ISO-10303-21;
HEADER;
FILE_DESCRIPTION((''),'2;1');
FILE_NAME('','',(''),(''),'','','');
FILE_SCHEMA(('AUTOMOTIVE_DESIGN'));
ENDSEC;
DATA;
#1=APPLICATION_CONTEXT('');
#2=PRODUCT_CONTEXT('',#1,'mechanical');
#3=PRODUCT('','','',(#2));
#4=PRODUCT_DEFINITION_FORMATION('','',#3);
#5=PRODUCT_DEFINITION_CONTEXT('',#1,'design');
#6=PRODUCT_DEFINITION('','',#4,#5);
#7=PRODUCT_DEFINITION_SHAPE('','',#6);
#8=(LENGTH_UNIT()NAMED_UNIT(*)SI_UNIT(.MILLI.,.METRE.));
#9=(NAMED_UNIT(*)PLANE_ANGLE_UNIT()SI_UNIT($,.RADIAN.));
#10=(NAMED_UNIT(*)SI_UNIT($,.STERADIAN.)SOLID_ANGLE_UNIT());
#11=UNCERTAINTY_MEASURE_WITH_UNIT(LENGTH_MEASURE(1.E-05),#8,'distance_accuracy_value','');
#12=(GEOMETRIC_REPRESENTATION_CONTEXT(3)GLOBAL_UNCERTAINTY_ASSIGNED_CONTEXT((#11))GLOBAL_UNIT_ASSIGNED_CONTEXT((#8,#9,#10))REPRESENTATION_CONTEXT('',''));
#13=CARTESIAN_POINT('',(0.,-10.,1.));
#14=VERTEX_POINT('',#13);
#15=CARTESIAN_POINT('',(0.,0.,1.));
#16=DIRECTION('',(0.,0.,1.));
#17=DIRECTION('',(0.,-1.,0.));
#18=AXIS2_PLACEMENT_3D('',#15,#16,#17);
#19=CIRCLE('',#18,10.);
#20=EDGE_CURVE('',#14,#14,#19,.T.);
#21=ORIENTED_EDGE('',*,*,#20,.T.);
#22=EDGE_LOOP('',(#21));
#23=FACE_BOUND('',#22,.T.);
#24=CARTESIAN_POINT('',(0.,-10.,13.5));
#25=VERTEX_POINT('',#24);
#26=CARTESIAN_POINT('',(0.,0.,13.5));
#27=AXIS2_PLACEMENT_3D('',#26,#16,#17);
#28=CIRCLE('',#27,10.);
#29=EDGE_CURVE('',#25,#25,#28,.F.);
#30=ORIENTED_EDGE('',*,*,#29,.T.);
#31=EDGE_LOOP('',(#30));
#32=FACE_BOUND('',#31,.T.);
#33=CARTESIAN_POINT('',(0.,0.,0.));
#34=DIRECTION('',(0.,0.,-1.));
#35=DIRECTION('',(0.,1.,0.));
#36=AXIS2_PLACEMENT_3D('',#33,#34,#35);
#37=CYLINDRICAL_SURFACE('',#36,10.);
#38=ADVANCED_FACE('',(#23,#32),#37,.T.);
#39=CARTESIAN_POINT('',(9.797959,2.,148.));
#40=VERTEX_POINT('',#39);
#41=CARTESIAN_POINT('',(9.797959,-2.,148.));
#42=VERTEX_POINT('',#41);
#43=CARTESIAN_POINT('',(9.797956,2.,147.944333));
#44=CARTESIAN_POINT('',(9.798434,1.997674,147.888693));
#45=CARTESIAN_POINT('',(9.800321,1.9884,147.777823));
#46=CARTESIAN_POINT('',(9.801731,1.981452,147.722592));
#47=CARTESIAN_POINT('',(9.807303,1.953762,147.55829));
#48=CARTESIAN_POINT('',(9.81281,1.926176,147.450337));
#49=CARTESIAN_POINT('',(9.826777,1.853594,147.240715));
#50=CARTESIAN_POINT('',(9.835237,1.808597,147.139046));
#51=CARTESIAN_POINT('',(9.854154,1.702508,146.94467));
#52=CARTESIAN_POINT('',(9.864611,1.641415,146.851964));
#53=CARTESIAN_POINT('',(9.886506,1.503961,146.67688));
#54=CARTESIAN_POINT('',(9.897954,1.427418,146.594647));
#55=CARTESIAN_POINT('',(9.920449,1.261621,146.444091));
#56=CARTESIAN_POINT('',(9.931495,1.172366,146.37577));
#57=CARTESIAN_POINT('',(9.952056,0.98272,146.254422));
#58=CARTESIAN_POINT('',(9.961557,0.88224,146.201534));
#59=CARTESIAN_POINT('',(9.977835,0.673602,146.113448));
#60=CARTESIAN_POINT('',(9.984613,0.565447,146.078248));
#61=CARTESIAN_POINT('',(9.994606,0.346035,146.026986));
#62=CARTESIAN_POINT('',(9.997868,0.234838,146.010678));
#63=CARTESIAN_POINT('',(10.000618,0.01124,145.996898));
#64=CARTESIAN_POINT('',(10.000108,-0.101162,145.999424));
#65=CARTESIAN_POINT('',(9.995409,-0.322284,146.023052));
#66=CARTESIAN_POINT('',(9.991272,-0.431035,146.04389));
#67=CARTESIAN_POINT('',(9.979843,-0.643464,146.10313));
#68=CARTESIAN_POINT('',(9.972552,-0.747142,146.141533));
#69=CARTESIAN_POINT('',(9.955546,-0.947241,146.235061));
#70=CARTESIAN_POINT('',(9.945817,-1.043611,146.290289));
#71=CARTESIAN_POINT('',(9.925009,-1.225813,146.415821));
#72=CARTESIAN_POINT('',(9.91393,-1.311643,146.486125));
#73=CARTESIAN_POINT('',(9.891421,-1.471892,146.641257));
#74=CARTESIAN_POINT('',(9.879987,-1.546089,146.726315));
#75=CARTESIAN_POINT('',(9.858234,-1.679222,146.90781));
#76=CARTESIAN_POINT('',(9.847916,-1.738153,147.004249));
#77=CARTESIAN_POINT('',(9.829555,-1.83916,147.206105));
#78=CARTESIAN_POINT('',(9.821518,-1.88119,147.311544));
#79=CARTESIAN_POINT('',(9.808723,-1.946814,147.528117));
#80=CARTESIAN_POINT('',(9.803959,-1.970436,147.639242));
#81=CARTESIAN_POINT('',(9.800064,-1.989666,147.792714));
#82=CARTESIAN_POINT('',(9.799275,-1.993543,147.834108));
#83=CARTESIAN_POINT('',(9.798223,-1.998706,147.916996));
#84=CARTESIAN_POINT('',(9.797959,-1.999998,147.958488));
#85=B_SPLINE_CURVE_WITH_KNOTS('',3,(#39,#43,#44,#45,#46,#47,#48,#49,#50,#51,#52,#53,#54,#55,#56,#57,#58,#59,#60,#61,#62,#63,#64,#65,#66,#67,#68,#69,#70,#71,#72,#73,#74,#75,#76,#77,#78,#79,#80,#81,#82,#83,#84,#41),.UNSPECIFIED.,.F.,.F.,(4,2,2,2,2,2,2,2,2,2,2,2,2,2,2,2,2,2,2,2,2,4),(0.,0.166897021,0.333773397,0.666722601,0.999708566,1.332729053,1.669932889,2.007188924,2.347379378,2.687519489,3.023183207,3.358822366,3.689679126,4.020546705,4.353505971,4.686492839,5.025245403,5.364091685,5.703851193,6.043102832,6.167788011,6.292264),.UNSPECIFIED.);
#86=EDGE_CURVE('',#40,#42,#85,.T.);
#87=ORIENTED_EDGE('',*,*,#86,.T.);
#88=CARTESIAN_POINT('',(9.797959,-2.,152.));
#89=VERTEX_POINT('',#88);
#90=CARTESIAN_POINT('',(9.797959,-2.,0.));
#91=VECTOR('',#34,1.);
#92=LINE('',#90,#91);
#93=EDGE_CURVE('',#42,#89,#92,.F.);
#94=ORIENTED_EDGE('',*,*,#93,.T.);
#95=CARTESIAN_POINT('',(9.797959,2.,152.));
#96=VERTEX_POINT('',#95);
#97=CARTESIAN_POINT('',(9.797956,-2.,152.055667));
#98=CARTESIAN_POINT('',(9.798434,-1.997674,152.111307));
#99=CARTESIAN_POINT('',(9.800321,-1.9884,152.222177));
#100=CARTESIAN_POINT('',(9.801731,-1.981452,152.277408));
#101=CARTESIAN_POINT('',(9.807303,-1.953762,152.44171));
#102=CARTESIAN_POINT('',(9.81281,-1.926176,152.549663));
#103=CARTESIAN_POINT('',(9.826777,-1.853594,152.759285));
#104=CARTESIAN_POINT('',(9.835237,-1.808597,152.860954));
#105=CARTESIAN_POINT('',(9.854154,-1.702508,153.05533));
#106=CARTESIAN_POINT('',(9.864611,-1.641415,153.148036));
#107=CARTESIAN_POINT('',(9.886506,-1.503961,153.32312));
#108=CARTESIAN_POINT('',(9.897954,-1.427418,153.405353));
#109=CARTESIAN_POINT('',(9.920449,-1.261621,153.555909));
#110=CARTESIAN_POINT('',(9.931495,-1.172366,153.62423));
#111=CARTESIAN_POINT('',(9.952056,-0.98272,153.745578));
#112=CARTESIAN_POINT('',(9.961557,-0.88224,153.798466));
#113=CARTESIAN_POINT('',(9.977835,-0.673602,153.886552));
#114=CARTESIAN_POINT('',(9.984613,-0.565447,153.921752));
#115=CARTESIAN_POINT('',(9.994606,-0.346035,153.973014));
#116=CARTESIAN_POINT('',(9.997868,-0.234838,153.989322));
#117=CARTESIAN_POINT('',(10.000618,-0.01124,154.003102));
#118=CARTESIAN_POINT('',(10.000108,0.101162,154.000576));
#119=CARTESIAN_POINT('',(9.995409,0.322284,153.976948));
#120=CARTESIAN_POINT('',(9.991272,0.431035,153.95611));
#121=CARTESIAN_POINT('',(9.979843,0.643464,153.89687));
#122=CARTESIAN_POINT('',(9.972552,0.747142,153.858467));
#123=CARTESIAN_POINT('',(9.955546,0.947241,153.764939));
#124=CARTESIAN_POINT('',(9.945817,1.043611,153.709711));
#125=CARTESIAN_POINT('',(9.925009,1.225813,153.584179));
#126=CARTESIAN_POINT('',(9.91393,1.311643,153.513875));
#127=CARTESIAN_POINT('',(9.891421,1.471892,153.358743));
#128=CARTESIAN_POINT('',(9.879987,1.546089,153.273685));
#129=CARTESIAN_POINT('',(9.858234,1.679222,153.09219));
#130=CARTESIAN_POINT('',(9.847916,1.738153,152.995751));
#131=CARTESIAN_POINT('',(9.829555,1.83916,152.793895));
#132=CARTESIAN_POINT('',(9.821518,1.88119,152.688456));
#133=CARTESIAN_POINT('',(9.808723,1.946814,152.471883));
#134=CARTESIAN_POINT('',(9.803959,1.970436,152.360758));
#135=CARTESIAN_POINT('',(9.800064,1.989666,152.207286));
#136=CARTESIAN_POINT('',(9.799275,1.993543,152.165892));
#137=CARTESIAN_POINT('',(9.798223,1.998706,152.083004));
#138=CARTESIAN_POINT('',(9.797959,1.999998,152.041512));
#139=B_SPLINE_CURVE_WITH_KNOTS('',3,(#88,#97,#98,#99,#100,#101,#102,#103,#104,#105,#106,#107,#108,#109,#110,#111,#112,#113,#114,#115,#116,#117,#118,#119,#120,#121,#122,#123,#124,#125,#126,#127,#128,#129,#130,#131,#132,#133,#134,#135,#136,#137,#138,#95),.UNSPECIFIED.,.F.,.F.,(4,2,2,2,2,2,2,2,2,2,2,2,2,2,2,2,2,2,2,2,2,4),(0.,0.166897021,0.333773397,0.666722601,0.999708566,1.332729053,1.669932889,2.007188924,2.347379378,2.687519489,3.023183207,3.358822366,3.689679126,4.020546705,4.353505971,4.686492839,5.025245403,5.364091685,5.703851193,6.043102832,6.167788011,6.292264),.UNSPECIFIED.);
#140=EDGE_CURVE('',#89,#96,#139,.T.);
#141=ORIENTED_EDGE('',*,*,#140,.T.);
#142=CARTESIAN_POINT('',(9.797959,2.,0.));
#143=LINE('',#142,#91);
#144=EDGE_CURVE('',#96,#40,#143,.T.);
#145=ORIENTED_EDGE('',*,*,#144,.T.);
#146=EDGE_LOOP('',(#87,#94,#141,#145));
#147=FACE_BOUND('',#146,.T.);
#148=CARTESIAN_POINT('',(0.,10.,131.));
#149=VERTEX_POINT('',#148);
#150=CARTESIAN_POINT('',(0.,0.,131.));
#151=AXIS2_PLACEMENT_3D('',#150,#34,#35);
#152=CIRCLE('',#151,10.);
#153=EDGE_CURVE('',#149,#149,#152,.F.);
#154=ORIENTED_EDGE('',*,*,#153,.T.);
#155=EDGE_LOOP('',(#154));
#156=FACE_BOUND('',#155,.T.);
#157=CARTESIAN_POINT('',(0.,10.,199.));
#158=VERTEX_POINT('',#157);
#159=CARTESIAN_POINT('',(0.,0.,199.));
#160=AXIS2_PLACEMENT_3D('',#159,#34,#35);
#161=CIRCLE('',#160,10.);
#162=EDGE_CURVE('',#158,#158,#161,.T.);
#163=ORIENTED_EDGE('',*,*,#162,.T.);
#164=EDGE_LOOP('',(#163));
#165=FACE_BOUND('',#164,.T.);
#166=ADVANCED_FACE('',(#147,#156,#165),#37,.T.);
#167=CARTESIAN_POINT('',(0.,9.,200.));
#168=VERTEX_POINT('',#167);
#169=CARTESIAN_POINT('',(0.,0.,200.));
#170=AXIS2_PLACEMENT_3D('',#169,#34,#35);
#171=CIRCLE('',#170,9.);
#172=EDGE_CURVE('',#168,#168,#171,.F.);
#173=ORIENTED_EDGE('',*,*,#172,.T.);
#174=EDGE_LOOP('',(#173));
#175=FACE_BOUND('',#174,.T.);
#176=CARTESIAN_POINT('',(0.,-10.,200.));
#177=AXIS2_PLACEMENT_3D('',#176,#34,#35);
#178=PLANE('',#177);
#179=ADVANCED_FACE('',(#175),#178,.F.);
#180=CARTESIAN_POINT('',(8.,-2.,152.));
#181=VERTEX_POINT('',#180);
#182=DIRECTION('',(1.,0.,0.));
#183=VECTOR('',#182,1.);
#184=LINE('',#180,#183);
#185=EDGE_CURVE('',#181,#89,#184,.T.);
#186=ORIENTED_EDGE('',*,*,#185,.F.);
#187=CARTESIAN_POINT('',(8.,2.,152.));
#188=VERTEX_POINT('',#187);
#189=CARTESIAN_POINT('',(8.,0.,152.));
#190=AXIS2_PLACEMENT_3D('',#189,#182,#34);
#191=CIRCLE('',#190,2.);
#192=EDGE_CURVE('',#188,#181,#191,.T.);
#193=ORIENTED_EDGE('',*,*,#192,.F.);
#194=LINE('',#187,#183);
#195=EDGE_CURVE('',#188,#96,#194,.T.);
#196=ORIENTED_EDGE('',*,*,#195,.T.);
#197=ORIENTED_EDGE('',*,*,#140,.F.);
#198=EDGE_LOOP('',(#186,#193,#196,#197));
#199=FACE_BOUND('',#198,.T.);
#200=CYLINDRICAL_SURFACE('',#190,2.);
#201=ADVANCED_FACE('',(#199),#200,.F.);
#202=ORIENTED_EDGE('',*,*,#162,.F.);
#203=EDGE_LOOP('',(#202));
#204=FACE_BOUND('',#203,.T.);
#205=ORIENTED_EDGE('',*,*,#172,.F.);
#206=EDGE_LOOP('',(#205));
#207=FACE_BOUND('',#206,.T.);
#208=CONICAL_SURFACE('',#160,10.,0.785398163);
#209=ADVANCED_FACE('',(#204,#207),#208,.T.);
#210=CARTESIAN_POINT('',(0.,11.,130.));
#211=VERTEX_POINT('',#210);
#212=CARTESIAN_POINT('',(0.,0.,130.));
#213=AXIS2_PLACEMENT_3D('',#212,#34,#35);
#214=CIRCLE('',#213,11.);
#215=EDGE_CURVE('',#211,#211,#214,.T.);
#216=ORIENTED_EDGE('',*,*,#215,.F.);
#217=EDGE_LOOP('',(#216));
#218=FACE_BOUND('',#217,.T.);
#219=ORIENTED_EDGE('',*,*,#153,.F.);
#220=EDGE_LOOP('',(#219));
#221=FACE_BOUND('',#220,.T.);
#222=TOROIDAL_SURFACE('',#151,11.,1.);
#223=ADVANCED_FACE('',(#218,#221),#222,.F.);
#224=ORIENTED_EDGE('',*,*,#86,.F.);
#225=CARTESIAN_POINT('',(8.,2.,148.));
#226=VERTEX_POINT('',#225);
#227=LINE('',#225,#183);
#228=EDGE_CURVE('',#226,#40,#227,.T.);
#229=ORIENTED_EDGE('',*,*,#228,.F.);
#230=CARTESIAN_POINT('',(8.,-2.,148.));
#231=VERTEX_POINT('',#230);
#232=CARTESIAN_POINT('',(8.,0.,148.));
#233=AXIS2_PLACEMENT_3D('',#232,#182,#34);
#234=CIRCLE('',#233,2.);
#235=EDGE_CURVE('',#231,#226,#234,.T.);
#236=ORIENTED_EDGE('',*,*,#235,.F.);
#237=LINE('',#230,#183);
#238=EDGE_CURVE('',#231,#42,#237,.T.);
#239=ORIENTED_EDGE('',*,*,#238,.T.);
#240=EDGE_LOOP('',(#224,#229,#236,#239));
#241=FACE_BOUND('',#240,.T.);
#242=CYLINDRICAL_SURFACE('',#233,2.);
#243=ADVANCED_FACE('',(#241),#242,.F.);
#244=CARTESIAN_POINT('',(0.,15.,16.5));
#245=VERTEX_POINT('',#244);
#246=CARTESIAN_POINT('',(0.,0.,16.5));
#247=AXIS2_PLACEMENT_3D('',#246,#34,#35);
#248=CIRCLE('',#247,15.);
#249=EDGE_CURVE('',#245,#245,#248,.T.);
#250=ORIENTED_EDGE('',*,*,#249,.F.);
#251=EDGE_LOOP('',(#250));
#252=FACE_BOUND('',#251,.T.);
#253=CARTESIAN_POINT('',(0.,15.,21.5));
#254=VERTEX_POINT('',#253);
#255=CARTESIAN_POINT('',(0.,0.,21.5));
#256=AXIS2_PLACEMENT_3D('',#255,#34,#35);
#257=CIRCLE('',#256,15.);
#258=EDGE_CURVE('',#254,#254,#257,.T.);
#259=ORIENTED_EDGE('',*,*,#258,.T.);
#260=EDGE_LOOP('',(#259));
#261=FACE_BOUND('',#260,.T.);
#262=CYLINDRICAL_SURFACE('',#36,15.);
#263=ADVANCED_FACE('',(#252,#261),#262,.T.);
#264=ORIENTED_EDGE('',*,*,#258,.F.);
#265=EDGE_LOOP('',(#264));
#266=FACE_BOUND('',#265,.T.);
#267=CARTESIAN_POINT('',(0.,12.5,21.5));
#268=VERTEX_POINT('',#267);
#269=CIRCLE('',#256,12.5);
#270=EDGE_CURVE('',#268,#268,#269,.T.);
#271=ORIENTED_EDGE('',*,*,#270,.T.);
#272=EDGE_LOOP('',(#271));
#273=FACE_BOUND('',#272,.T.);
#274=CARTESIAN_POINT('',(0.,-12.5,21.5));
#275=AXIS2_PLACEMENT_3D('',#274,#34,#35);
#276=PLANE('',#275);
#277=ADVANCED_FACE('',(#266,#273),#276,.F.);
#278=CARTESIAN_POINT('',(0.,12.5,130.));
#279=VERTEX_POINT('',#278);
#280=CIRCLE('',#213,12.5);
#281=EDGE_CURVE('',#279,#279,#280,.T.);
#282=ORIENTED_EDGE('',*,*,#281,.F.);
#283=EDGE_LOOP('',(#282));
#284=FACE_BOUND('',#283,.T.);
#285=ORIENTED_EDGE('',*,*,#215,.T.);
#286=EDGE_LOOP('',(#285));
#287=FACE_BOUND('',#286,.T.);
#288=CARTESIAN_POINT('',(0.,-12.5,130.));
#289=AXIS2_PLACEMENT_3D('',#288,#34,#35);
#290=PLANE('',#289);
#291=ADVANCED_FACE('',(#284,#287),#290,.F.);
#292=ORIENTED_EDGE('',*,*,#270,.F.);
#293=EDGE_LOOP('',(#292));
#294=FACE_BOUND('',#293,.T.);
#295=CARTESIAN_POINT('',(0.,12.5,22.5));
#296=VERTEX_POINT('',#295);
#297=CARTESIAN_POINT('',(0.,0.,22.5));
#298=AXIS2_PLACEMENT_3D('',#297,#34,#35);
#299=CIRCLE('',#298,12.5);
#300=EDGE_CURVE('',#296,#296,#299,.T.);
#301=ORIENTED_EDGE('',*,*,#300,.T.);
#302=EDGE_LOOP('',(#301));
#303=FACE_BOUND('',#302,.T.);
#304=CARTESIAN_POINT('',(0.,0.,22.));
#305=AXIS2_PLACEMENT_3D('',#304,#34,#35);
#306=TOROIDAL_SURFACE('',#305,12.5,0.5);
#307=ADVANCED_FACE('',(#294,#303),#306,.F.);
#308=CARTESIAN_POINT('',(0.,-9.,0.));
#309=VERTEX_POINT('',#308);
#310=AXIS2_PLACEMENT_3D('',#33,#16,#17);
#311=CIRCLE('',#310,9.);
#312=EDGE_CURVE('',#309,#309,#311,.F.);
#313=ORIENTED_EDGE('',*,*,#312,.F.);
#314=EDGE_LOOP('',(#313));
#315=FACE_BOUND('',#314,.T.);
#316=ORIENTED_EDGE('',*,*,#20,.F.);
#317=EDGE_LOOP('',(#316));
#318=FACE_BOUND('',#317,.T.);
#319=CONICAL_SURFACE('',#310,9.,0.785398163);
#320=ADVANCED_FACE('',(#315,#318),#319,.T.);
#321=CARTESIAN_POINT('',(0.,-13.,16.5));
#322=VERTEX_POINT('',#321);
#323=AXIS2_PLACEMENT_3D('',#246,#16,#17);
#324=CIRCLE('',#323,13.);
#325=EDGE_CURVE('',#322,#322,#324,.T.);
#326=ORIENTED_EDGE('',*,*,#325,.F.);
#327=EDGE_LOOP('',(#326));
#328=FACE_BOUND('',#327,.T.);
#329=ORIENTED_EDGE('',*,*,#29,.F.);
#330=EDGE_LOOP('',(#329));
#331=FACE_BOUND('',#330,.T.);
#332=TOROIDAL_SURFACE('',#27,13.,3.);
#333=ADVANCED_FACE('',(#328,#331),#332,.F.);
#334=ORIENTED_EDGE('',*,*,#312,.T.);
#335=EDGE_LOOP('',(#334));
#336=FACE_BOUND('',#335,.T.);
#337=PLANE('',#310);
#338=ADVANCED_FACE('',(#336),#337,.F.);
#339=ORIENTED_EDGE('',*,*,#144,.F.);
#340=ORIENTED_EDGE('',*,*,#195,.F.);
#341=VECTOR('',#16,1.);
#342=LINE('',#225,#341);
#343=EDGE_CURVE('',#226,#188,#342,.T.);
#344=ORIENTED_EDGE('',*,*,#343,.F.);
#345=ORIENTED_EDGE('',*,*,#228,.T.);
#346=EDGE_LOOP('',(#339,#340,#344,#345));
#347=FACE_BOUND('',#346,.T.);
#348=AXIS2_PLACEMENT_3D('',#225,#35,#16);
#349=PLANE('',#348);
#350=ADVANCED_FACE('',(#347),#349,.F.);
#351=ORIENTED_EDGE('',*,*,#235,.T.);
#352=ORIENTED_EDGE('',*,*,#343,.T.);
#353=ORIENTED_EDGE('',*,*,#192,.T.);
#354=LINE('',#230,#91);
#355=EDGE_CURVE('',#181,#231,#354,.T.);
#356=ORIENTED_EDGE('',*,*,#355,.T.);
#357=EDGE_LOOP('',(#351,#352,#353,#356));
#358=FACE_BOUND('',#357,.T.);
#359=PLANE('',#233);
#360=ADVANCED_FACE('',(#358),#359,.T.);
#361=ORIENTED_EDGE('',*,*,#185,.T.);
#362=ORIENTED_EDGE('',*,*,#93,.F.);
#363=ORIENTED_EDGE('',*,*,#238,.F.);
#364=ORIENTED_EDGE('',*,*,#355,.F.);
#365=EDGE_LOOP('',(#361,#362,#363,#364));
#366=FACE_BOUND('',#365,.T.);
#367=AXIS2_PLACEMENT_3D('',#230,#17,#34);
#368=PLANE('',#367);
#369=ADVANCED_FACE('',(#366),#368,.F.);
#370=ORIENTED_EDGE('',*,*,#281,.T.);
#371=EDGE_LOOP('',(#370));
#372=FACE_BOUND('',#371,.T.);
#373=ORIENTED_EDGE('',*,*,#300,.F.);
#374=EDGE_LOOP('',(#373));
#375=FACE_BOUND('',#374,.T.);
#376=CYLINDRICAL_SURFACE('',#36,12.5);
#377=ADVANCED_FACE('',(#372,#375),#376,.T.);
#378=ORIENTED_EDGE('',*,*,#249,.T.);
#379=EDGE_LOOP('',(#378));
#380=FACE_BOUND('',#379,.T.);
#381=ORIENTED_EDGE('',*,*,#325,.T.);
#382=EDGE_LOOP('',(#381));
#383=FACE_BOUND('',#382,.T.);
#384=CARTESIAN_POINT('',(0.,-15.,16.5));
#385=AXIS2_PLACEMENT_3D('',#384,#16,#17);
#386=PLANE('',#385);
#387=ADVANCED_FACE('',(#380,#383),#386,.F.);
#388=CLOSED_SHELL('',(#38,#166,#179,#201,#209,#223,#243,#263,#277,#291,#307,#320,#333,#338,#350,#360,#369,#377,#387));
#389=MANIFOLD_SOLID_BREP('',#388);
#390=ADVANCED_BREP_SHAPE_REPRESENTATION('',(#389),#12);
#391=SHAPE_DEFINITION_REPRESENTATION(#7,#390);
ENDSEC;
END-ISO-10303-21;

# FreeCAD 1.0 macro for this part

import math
import FreeCAD as App
import Part
import Sketcher


def edges_at(feature, points):
    """Names of the edges that pass closest to the given points."""
    edges = feature.Shape.Edges
    near = lambda p: min(range(len(edges)), key=lambda i: edges[i].distToShape(Part.Vertex(*p))[0])
    return sorted({f"Edge{near(p) + 1}" for p in points})

doc = App.newDocument("Part")
params = doc.addObject("Spreadsheet::Sheet", "Params")
for row, (alias, value) in enumerate([
    ("sketch1_radius", "0.5 mm"),
    ("sketch1_width", "10 mm"),
    ("sketch1_width2", "5 mm"),
    ("sketch1_height", "200 mm"),
    ("sketch1_height2", "70 mm"),
    ("revolution_angle", "360 deg"),
    ("fillet_radius", "1 mm"),
    ("fillet2_radius", "3 mm"),
    ("chamfer_size", "1 mm"),
    ("sketch2_radius", "2 mm"),
    ("sketch2_height", "4 mm"),
    ("pocket1_length", "2 mm"),
    ("chamfer2_size", "1 mm"),
], start=1):
    params.set(f"A{row}", alias)
    params.set(f"B{row}", "=" + value)
    params.setAlias(f"B{row}", alias)

body = doc.addObject("PartDesign::Body", "Body")

sketch1 = body.newObject("Sketcher::SketchObject", "Sketch")
sketch1.AttachmentSupport = (doc.getObject("YZ_Plane"), [""])
sketch1.MapMode = "FlatFace"
sketch1.addGeometry([
    Part.LineSegment(App.Vector(-10, 0, 0), App.Vector(0, 0, 0)),
    Part.LineSegment(App.Vector(0, 0, 0), App.Vector(0, 200, 0)),
    Part.LineSegment(App.Vector(0, 200, 0), App.Vector(-10, 200, 0)),
    Part.LineSegment(App.Vector(-10, 200, 0), App.Vector(-10, 130, 0)),
    Part.LineSegment(App.Vector(-10, 130, 0), App.Vector(-12.5, 130, 0)),
    Part.LineSegment(App.Vector(-12.5, 130, 0), App.Vector(-12.5, 22.5, 0)),
    Part.ArcOfCircle(Part.Circle(App.Vector(-12.5, 22, 0), App.Vector(0, 0, 1), 0.5), math.radians(-90), math.radians(90)),
    Part.LineSegment(App.Vector(-12.5, 21.5, 0), App.Vector(-15, 21.5, 0)),
    Part.LineSegment(App.Vector(-15, 21.5, 0), App.Vector(-15, 16.5, 0)),
    Part.LineSegment(App.Vector(-15, 16.5, 0), App.Vector(-10, 16.5, 0)),
    Part.LineSegment(App.Vector(-10, 16.5, 0), App.Vector(-10, 0, 0)),
], False)
sketch1.addConstraint([
    Sketcher.Constraint("Coincident", 0, 2, 1, 1),
    Sketcher.Constraint("Coincident", 1, 2, 2, 1),
    Sketcher.Constraint("Coincident", 2, 2, 3, 1),
    Sketcher.Constraint("Coincident", 3, 2, 4, 1),
    Sketcher.Constraint("Coincident", 4, 2, 5, 1),
    Sketcher.Constraint("Coincident", 5, 2, 6, 2),
    Sketcher.Constraint("Tangent", 6, 1, 7, 1),
    Sketcher.Constraint("Coincident", 7, 2, 8, 1),
    Sketcher.Constraint("Coincident", 8, 2, 9, 1),
    Sketcher.Constraint("Coincident", 9, 2, 10, 1),
    Sketcher.Constraint("Coincident", 10, 2, 0, 1),
    Sketcher.Constraint("Horizontal", 0),
    Sketcher.Constraint("Vertical", 1),
    Sketcher.Constraint("Horizontal", 2),
    Sketcher.Constraint("Vertical", 3),
    Sketcher.Constraint("Horizontal", 4),
    Sketcher.Constraint("Vertical", 5),
    Sketcher.Constraint("Horizontal", 7),
    Sketcher.Constraint("Vertical", 8),
    Sketcher.Constraint("Horizontal", 9),
    Sketcher.Constraint("Vertical", 10),
    Sketcher.Constraint("Coincident", 0, 2, -1, 1),
    Sketcher.Constraint("Vertical", 6, 3, 4, 2),
    Sketcher.Constraint("Vertical", 3, 2, 9, 2),
    Sketcher.Constraint("Equal", 4, 7),
    Sketcher.Constraint("Equal", 9, 8),
    Sketcher.Constraint("Radius", 6, 0.5),
    Sketcher.Constraint("DistanceX", 0, 1, 0, 2, 10.0),
    Sketcher.Constraint("DistanceX", 9, 1, 9, 2, 5.0),
    Sketcher.Constraint("DistanceY", 1, 1, 1, 2, 200.0),
    Sketcher.Constraint("DistanceY", 3, 2, 3, 1, 70.0),
    Sketcher.Constraint("DistanceY", 5, 2, 5, 1, 107.5),
])
sketch1.setExpression("Constraints[26]", "Params.sketch1_radius")
sketch1.setExpression("Constraints[27]", "Params.sketch1_width")
sketch1.setExpression("Constraints[28]", "Params.sketch1_width2")
sketch1.setExpression("Constraints[29]", "Params.sketch1_height")
sketch1.setExpression("Constraints[30]", "Params.sketch1_height2")
revolution = body.newObject("PartDesign::Revolution", "Revolution")
revolution.Profile = sketch1
revolution.ReferenceAxis = (sketch1, ["V_Axis"])
revolution.setExpression("Angle", "Params.revolution_angle")
doc.recompute()

fillet = body.newObject("PartDesign::Fillet", "Fillet")
fillet.Base = (revolution, edges_at(revolution, [(0, 10, 130)]))
fillet.setExpression("Radius", "Params.fillet_radius")
doc.recompute()

fillet2 = body.newObject("PartDesign::Fillet", "Fillet001")
fillet2.Base = (fillet, edges_at(fillet, [(0, 10, 16.5)]))
fillet2.setExpression("Radius", "Params.fillet2_radius")
doc.recompute()

chamfer = body.newObject("PartDesign::Chamfer", "Chamfer")
chamfer.Base = (fillet2, edges_at(fillet2, [(0, 10, 200)]))
chamfer.setExpression("Size", "Params.chamfer_size")

sketch2 = body.newObject("Sketcher::SketchObject", "Sketch001")
sketch2.AttachmentSupport = (doc.getObject("YZ_Plane"), [""])
sketch2.MapMode = "FlatFace"
sketch2.AttachmentOffset = App.Placement(App.Vector(0, 0, 10), App.Rotation())
sketch2.addGeometry([
    Part.LineSegment(App.Vector(-2, 152, 0), App.Vector(-2, 148, 0)),
    Part.ArcOfCircle(Part.Circle(App.Vector(0, 148, 0), App.Vector(0, 0, 1), 2), math.radians(180), math.radians(360)),
    Part.LineSegment(App.Vector(2, 148, 0), App.Vector(2, 152, 0)),
    Part.ArcOfCircle(Part.Circle(App.Vector(0, 152, 0), App.Vector(0, 0, 1), 2), math.radians(0), math.radians(180)),
], False)
sketch2.addConstraint([
    Sketcher.Constraint("Tangent", 0, 2, 1, 1),
    Sketcher.Constraint("Tangent", 1, 2, 2, 1),
    Sketcher.Constraint("Tangent", 2, 2, 3, 1),
    Sketcher.Constraint("Tangent", 3, 2, 0, 1),
    Sketcher.Constraint("Vertical", 0),
    Sketcher.Constraint("Vertical", 2),
    Sketcher.Constraint("PointOnObject", 1, 3, -2),
    Sketcher.Constraint("Radius", 1, 2.0),
    Sketcher.Constraint("DistanceY", 0, 2, 0, 1, 4.0),
    Sketcher.Constraint("DistanceY", -1, 1, 1, 3, 148.0),
])
sketch2.setExpression("Constraints[7]", "Params.sketch2_radius")
sketch2.setExpression("Constraints[8]", "Params.sketch2_height")
pocket1 = body.newObject("PartDesign::Pocket", "Pocket")
pocket1.Profile = sketch2
pocket1.setExpression("Length", "Params.pocket1_length")
doc.recompute()

chamfer2 = body.newObject("PartDesign::Chamfer", "Chamfer001")
chamfer2.Base = (pocket1, edges_at(pocket1, [(0, 10, 0)]))
chamfer2.setExpression("Size", "Params.chamfer2_size")

doc.recompute()
